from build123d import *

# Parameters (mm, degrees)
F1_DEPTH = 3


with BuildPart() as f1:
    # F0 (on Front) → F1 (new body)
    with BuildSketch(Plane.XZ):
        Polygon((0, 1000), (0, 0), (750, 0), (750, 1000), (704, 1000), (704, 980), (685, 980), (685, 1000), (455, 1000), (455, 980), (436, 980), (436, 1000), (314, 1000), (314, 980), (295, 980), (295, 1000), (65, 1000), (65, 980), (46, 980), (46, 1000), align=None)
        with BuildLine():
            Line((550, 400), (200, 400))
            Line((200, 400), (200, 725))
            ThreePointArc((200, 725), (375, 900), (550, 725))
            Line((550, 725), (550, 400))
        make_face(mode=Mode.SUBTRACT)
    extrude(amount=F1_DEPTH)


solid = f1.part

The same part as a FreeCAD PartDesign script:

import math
import FreeCAD as App
import Part
import Sketcher
from FreeCAD import Vector
Q = App.Units.Quantity

doc = App.newDocument("Part")
body = doc.addObject("PartDesign::Body", "Body")

sketch1 = body.newObject("Sketcher::SketchObject", "Sketch")
sketch1.AttachmentSupport = (doc.getObject("XZ_Plane"), [""])
sketch1.MapMode = "FlatFace"
sketch1.addGeometry(Part.LineSegment(Vector(0, 1000, 0), Vector(0, 0, 0)), False)
sketch1.addGeometry(Part.LineSegment(Vector(0, 0, 0), Vector(750, 0, 0)), False)
sketch1.addGeometry(Part.LineSegment(Vector(750, 0, 0), Vector(750, 1000, 0)), False)
sketch1.addGeometry(Part.LineSegment(Vector(750, 1000, 0), Vector(704, 1000, 0)), False)
sketch1.addGeometry(Part.LineSegment(Vector(704, 1000, 0), Vector(704, 980, 0)), False)
sketch1.addGeometry(Part.LineSegment(Vector(704, 980, 0), Vector(685, 980, 0)), False)
sketch1.addGeometry(Part.LineSegment(Vector(685, 980, 0), Vector(685, 1000, 0)), False)
sketch1.addGeometry(Part.LineSegment(Vector(685, 1000, 0), Vector(455, 1000, 0)), False)
sketch1.addGeometry(Part.LineSegment(Vector(455, 1000, 0), Vector(455, 980, 0)), False)
sketch1.addGeometry(Part.LineSegment(Vector(455, 980, 0), Vector(436, 980, 0)), False)
sketch1.addGeometry(Part.LineSegment(Vector(436, 980, 0), Vector(436, 1000, 0)), False)
sketch1.addGeometry(Part.LineSegment(Vector(436, 1000, 0), Vector(314, 1000, 0)), False)
sketch1.addGeometry(Part.LineSegment(Vector(314, 1000, 0), Vector(314, 980, 0)), False)
sketch1.addGeometry(Part.LineSegment(Vector(314, 980, 0), Vector(295, 980, 0)), False)
sketch1.addGeometry(Part.LineSegment(Vector(295, 980, 0), Vector(295, 1000, 0)), False)
sketch1.addGeometry(Part.LineSegment(Vector(295, 1000, 0), Vector(65, 1000, 0)), False)
sketch1.addGeometry(Part.LineSegment(Vector(65, 1000, 0), Vector(65, 980, 0)), False)
sketch1.addGeometry(Part.LineSegment(Vector(65, 980, 0), Vector(46, 980, 0)), False)
sketch1.addGeometry(Part.LineSegment(Vector(46, 980, 0), Vector(46, 1000, 0)), False)
sketch1.addGeometry(Part.LineSegment(Vector(46, 1000, 0), Vector(0, 1000, 0)), False)
sketch1.addGeometry(Part.LineSegment(Vector(550, 725, 0), Vector(550, 400, 0)), False)
sketch1.addGeometry(Part.LineSegment(Vector(550, 400, 0), Vector(200, 400, 0)), False)
sketch1.addGeometry(Part.LineSegment(Vector(200, 400, 0), Vector(200, 725, 0)), False)
sketch1.addGeometry(Part.ArcOfCircle(Part.Circle(Vector(375, 725, 0), Vector(0, 0, 1), 175), math.radians(0), math.radians(180)), False)
sketch1.addConstraint(Sketcher.Constraint("Coincident", 0, 2, 1, 1))
sketch1.addConstraint(Sketcher.Constraint("Coincident", 1, 2, 2, 1))
sketch1.addConstraint(Sketcher.Constraint("Coincident", 2, 2, 3, 1))
sketch1.addConstraint(Sketcher.Constraint("Coincident", 3, 2, 4, 1))
sketch1.addConstraint(Sketcher.Constraint("Coincident", 4, 2, 5, 1))
sketch1.addConstraint(Sketcher.Constraint("Coincident", 5, 2, 6, 1))
sketch1.addConstraint(Sketcher.Constraint("Coincident", 6, 2, 7, 1))
sketch1.addConstraint(Sketcher.Constraint("Coincident", 7, 2, 8, 1))
sketch1.addConstraint(Sketcher.Constraint("Coincident", 8, 2, 9, 1))
sketch1.addConstraint(Sketcher.Constraint("Coincident", 9, 2, 10, 1))
sketch1.addConstraint(Sketcher.Constraint("Coincident", 10, 2, 11, 1))
sketch1.addConstraint(Sketcher.Constraint("Coincident", 11, 2, 12, 1))
sketch1.addConstraint(Sketcher.Constraint("Coincident", 12, 2, 13, 1))
sketch1.addConstraint(Sketcher.Constraint("Coincident", 13, 2, 14, 1))
sketch1.addConstraint(Sketcher.Constraint("Coincident", 14, 2, 15, 1))
sketch1.addConstraint(Sketcher.Constraint("Coincident", 15, 2, 16, 1))
sketch1.addConstraint(Sketcher.Constraint("Coincident", 16, 2, 17, 1))
sketch1.addConstraint(Sketcher.Constraint("Coincident", 17, 2, 18, 1))
sketch1.addConstraint(Sketcher.Constraint("Coincident", 18, 2, 19, 1))
sketch1.addConstraint(Sketcher.Constraint("Coincident", 19, 2, 0, 1))
sketch1.addConstraint(Sketcher.Constraint("Coincident", 20, 2, 21, 1))
sketch1.addConstraint(Sketcher.Constraint("Coincident", 21, 2, 22, 1))
sketch1.addConstraint(Sketcher.Constraint("Tangent", 22, 2, 23, 2))
sketch1.addConstraint(Sketcher.Constraint("Tangent", 23, 1, 20, 1))
sketch1.addConstraint(Sketcher.Constraint("Vertical", 0))
sketch1.addConstraint(Sketcher.Constraint("Horizontal", 1))
sketch1.addConstraint(Sketcher.Constraint("Vertical", 2))
sketch1.addConstraint(Sketcher.Constraint("Horizontal", 3))
sketch1.addConstraint(Sketcher.Constraint("Vertical", 4))
sketch1.addConstraint(Sketcher.Constraint("Horizontal", 5))
sketch1.addConstraint(Sketcher.Constraint("Vertical", 6))
sketch1.addConstraint(Sketcher.Constraint("Horizontal", 7))
sketch1.addConstraint(Sketcher.Constraint("Vertical", 8))
sketch1.addConstraint(Sketcher.Constraint("Horizontal", 9))
sketch1.addConstraint(Sketcher.Constraint("Vertical", 10))
sketch1.addConstraint(Sketcher.Constraint("Horizontal", 11))
sketch1.addConstraint(Sketcher.Constraint("Vertical", 12))
sketch1.addConstraint(Sketcher.Constraint("Horizontal", 13))
sketch1.addConstraint(Sketcher.Constraint("Vertical", 14))
sketch1.addConstraint(Sketcher.Constraint("Horizontal", 15))
sketch1.addConstraint(Sketcher.Constraint("Vertical", 16))
sketch1.addConstraint(Sketcher.Constraint("Horizontal", 17))
sketch1.addConstraint(Sketcher.Constraint("Vertical", 18))
sketch1.addConstraint(Sketcher.Constraint("Horizontal", 19))
sketch1.addConstraint(Sketcher.Constraint("Vertical", 20))
sketch1.addConstraint(Sketcher.Constraint("Horizontal", 21))
sketch1.addConstraint(Sketcher.Constraint("Vertical", 22))
sketch1.addConstraint(Sketcher.Constraint("Coincident", 0, 2, -1, 1))
sketch1.addConstraint(Sketcher.Constraint("Horizontal", 3, 2, 6, 2))
sketch1.addConstraint(Sketcher.Constraint("Horizontal", 5, 2, 8, 2))
sketch1.addConstraint(Sketcher.Constraint("Horizontal", 7, 2, 10, 2))
sketch1.addConstraint(Sketcher.Constraint("Horizontal", 9, 2, 12, 2))
sketch1.addConstraint(Sketcher.Constraint("Horizontal", 11, 2, 14, 2))
sketch1.addConstraint(Sketcher.Constraint("Horizontal", 13, 2, 16, 2))
sketch1.addConstraint(Sketcher.Constraint("Horizontal", 15, 2, 18, 2))
sketch1.addConstraint(Sketcher.Constraint("Equal", 5, 9))
sketch1.addConstraint(Sketcher.Constraint("Equal", 9, 13))
sketch1.addConstraint(Sketcher.Constraint("Equal", 7, 15))
sketch1.addConstraint(Sketcher.Constraint("Equal", 13, 17))
sketch1.addConstraint(Sketcher.Constraint("Equal", 3, 19))
sketch1.addConstraint(Sketcher.Constraint("Radius", 23, Q("175 mm")))
sketch1.addConstraint(Sketcher.Constraint("DistanceX", 1, 1, 1, 2, Q("750 mm")))
sketch1.addConstraint(Sketcher.Constraint("DistanceX", 3, 2, 3, 1, Q("46 mm")))
sketch1.addConstraint(Sketcher.Constraint("DistanceX", 5, 2, 5, 1, Q("19 mm")))
sketch1.addConstraint(Sketcher.Constraint("DistanceX", 7, 2, 7, 1, Q("230 mm")))
sketch1.addConstraint(Sketcher.Constraint("DistanceY", 0, 2, 0, 1, Q("1000 mm")))
sketch1.addConstraint(Sketcher.Constraint("DistanceY", 4, 2, 4, 1, Q("20 mm")))
sketch1.addConstraint(Sketcher.Constraint("DistanceY", 20, 2, 20, 1, Q("325 mm")))
sketch1.addConstraint(Sketcher.Constraint("DistanceX", -1, 1, 23, 3, Q("375 mm")))
sketch1.addConstraint(Sketcher.Constraint("DistanceY", -1, 1, 23, 3, Q("725 mm")))
pad1 = body.newObject("PartDesign::Pad", "Pad")
pad1.Profile = sketch1
pad1.Length = 3

doc.recompute()
